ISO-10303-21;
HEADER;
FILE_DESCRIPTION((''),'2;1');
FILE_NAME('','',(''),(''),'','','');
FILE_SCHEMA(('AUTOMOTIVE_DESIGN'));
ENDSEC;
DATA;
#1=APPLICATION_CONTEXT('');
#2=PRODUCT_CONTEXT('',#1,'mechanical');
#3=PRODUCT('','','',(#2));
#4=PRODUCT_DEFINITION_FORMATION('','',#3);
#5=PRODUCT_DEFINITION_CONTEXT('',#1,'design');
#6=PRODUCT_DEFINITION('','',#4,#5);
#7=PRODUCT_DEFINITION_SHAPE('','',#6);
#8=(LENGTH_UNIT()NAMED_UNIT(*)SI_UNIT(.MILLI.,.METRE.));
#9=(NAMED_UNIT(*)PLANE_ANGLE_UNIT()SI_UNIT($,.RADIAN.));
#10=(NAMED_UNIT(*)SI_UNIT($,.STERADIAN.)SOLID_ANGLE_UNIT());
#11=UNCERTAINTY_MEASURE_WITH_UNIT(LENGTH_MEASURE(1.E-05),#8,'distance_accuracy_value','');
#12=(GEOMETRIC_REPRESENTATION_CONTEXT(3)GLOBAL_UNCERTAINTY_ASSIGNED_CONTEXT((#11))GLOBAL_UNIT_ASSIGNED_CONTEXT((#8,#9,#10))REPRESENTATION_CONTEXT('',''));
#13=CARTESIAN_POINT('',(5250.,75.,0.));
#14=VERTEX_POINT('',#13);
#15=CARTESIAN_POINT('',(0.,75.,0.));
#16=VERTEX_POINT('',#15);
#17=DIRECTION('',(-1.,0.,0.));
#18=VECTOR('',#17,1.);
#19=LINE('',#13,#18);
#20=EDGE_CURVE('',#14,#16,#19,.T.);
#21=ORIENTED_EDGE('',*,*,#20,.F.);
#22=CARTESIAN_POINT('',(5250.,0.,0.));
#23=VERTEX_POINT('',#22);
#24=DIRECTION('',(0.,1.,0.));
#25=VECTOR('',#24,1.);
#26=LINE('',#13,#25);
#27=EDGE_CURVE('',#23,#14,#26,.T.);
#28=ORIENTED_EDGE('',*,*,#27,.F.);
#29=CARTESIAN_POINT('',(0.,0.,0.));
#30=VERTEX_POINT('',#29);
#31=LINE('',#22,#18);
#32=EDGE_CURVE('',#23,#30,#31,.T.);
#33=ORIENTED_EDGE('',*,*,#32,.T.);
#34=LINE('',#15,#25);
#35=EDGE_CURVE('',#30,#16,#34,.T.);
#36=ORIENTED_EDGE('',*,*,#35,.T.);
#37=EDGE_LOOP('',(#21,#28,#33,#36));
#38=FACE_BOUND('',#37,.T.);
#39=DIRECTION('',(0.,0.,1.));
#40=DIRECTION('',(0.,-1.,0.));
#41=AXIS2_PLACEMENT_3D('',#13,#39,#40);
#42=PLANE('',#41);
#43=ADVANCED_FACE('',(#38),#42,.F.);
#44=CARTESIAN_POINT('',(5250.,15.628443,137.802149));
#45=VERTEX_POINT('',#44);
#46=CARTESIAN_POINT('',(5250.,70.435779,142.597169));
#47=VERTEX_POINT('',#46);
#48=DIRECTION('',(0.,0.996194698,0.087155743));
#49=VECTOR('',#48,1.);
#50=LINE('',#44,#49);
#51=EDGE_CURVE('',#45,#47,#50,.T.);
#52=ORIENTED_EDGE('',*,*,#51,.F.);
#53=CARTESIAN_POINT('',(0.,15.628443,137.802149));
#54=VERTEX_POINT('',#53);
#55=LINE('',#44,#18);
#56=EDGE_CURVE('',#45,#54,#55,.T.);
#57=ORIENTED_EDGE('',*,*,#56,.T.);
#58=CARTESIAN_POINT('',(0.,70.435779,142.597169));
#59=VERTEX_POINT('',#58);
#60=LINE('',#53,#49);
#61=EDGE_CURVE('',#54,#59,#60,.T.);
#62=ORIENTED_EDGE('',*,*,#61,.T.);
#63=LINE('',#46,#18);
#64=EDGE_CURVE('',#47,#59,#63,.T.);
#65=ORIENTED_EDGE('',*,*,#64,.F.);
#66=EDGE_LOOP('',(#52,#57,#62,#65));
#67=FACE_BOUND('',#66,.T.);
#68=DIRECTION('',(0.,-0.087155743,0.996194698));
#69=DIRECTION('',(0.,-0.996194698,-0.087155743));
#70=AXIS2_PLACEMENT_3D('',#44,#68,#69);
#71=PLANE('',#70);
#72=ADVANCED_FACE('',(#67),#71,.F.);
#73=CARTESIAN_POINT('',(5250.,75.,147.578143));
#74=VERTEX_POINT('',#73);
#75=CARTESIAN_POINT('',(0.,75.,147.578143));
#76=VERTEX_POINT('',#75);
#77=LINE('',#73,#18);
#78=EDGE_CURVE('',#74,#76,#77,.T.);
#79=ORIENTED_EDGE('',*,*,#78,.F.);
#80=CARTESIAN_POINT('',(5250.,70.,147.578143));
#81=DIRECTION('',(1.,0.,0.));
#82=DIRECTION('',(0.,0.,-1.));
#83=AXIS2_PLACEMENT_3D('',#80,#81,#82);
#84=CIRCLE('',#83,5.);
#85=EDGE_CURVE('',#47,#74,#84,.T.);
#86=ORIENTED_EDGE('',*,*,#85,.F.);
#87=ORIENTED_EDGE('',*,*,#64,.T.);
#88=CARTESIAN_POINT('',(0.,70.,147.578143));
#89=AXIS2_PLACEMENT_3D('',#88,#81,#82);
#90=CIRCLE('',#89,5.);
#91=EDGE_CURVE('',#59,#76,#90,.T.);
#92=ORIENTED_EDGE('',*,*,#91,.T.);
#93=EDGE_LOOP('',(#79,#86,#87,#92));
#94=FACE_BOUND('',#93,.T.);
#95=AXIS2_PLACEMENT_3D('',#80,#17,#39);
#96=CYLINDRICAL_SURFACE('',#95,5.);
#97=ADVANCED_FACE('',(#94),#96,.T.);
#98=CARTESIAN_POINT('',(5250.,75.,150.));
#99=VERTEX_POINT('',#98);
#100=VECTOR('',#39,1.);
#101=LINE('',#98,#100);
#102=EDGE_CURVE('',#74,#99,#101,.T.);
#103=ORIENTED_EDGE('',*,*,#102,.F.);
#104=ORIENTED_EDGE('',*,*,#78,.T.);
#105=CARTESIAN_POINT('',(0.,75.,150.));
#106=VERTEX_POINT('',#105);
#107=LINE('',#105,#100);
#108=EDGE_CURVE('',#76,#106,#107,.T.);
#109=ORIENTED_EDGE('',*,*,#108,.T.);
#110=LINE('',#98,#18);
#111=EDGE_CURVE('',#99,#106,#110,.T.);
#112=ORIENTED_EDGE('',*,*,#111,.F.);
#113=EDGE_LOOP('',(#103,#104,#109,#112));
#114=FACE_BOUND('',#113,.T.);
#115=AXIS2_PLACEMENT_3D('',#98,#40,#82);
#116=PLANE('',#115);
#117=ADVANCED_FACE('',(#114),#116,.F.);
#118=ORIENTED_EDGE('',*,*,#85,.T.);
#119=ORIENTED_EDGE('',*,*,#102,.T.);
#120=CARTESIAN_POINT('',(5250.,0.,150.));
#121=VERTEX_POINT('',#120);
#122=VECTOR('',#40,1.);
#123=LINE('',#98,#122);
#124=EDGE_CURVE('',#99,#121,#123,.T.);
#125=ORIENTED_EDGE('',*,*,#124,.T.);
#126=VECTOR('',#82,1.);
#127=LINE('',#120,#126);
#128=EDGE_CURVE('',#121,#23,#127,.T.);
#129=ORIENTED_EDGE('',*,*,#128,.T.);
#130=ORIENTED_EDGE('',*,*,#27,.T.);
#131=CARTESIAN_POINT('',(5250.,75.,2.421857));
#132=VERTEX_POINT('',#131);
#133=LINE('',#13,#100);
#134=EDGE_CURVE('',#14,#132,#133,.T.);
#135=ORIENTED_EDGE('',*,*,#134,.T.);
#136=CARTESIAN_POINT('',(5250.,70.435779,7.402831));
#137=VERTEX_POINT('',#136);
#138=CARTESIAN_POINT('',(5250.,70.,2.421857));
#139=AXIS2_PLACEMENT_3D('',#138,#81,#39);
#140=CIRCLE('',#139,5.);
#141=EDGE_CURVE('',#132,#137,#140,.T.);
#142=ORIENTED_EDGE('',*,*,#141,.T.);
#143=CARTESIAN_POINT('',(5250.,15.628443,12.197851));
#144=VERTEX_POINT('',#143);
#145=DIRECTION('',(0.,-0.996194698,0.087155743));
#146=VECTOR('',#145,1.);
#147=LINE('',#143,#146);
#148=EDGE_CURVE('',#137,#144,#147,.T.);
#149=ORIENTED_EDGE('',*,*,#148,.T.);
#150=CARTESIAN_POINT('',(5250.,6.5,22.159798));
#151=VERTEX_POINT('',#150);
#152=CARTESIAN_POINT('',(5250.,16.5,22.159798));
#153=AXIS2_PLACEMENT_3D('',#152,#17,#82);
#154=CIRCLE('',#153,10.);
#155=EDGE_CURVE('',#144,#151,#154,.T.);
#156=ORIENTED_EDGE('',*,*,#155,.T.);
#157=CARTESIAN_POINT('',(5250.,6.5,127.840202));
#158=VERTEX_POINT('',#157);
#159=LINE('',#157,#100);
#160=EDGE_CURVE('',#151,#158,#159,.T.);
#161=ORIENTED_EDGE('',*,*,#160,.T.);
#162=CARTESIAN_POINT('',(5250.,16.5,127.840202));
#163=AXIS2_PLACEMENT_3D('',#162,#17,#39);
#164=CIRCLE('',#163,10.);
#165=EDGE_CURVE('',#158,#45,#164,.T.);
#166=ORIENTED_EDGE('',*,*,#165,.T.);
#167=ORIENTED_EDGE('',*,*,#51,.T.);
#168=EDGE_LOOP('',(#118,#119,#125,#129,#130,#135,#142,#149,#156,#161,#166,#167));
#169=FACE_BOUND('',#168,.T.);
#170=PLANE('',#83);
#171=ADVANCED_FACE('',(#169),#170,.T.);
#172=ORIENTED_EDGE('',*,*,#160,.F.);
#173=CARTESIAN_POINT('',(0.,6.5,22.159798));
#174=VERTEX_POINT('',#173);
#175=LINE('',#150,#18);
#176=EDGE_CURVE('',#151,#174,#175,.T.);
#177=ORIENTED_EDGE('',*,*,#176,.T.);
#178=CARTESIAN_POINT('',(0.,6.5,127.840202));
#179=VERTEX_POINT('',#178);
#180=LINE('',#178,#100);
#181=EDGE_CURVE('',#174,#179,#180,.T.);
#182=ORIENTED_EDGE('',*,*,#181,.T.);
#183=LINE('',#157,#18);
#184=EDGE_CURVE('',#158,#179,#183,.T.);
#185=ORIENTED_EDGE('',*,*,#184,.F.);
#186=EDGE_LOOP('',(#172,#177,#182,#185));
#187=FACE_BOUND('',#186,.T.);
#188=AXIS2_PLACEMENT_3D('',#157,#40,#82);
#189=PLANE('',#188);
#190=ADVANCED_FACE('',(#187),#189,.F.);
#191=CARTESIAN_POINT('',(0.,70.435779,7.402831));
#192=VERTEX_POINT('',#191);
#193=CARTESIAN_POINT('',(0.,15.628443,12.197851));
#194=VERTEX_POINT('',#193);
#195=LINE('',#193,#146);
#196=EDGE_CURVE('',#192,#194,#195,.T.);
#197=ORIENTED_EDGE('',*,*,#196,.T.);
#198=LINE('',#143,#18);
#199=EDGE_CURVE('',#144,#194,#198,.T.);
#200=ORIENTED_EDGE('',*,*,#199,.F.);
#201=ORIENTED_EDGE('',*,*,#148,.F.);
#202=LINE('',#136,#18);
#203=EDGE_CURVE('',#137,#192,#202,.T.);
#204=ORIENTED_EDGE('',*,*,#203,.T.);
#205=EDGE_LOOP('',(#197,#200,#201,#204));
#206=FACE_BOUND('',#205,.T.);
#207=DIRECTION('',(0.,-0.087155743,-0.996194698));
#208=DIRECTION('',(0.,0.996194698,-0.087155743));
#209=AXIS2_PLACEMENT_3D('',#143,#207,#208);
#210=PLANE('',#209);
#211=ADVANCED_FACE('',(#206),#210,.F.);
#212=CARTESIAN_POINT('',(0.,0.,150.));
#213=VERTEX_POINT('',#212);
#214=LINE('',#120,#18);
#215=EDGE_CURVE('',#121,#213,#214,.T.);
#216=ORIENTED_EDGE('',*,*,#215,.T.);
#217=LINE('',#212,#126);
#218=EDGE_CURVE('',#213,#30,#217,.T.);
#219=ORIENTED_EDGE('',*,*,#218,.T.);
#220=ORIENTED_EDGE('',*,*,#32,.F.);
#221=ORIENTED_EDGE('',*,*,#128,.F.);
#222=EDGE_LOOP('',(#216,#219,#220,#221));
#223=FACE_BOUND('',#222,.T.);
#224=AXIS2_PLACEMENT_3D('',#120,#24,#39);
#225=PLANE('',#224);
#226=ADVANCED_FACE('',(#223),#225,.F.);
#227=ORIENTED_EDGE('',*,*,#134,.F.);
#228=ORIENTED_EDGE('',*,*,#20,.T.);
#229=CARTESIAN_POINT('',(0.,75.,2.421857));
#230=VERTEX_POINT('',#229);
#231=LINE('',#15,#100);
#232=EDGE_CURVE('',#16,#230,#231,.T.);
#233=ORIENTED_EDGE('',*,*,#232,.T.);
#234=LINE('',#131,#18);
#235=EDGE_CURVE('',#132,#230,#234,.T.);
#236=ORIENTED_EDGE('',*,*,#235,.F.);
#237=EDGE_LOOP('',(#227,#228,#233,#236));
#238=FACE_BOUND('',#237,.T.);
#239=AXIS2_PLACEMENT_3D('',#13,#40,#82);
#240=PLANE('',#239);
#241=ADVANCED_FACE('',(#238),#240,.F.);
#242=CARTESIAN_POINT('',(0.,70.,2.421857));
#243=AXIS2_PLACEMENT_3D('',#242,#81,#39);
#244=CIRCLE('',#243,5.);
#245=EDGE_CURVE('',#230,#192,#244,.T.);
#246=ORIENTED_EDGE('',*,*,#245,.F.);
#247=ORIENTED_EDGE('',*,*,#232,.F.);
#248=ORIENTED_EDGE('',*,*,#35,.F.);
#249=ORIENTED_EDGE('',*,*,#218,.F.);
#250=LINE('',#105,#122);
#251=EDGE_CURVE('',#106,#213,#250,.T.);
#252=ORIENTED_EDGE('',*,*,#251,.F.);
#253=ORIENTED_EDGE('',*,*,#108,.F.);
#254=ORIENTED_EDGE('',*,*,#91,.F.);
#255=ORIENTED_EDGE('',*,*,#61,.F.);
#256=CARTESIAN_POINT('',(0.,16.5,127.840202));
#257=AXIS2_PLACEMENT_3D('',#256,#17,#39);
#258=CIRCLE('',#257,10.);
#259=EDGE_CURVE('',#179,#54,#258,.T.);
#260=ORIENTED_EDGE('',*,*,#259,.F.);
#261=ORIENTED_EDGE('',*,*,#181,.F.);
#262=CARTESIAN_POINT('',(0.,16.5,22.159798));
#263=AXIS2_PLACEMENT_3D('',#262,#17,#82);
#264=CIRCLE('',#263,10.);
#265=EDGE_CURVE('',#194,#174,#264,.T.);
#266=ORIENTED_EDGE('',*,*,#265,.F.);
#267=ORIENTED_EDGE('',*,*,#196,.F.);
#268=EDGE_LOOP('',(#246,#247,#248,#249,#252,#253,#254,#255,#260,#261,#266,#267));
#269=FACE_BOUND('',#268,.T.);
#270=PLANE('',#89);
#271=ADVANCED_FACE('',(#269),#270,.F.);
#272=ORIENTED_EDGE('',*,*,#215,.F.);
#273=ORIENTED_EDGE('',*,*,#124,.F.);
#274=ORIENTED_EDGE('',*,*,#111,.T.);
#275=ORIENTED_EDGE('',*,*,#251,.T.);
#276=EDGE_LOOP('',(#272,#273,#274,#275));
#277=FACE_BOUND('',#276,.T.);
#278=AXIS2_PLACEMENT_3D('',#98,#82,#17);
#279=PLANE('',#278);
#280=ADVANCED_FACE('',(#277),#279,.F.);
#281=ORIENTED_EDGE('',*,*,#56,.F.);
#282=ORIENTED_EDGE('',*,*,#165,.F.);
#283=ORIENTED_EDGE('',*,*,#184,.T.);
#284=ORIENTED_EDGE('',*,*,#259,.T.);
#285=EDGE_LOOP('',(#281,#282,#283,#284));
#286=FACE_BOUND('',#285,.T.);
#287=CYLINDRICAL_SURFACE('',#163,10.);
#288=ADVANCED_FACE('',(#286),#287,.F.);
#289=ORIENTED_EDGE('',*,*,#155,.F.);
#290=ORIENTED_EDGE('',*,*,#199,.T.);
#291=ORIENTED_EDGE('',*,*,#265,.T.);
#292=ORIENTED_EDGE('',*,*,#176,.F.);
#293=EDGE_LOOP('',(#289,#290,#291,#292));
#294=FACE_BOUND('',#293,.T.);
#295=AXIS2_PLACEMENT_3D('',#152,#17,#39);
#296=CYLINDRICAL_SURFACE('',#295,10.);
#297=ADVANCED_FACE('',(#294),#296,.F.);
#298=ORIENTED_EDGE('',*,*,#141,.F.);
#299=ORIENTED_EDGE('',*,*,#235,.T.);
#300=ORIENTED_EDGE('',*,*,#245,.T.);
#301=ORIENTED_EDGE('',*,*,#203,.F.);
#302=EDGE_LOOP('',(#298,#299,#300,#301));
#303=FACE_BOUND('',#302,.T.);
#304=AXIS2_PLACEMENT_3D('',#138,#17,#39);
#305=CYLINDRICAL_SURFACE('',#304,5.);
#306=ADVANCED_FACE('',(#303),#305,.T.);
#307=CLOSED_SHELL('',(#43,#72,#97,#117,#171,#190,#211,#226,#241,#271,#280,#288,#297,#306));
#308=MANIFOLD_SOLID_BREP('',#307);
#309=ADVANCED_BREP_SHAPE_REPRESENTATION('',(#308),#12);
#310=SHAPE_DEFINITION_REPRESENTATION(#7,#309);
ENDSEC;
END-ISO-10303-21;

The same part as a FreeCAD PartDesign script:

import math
import FreeCAD as App
import Part
import Sketcher
from FreeCAD import Vector
Q = App.Units.Quantity

doc = App.newDocument("Part")
params = doc.addObject("Spreadsheet::Sheet", "Params")
for row, (alias, value) in enumerate([
    ("sketch1_radius", "5 mm"),
    ("sketch1_radius2", "10 mm"),
    ("sketch1_width", "75 mm"),
    ("sketch1_height", "150 mm"),
    ("pad1_length", "5250 mm"),
], start=1):
    params.set(f"A{row}", alias)
    params.set(f"B{row}", "=" + value)
    params.setAlias(f"B{row}", alias)

body = doc.addObject("PartDesign::Body", "Body")

# Sketch on YZ plane
sketch1 = body.newObject("Sketcher::SketchObject", "Sketch")
sketch1.AttachmentSupport = (doc.getObject("YZ_Plane"), [""])
sketch1.MapMode = "FlatFace"
sketch1.addGeometry([
    Part.LineSegment(Vector(75, 150, 0), Vector(0, 150, 0)),  # 0
    Part.LineSegment(Vector(0, 150, 0), Vector(0, 0, 0)),  # 1
    Part.LineSegment(Vector(0, 0, 0), Vector(75, 0, 0)),  # 2
    Part.LineSegment(Vector(75, 0, 0), Vector(75, 2.4, 0)),  # 3
    Part.ArcOfCircle(Part.Circle(Vector(70, 2.4, 0), Vector(0, 0, 1), 5), math.radians(0), math.radians(85)),  # 4
    Part.LineSegment(Vector(70.4, 7.4, 0), Vector(15.6, 12.2, 0)),  # 5
    Part.ArcOfCircle(Part.Circle(Vector(16.5, 22.2, 0), Vector(0, 0, 1), 10), math.radians(180), math.radians(265)),  # 6
    Part.LineSegment(Vector(6.5, 22.2, 0), Vector(6.5, 127.8, 0)),  # 7
    Part.ArcOfCircle(Part.Circle(Vector(16.5, 127.8, 0), Vector(0, 0, 1), 10), math.radians(95), math.radians(180)),  # 8
    Part.LineSegment(Vector(15.6, 137.8, 0), Vector(70.4, 142.6, 0)),  # 9
    Part.ArcOfCircle(Part.Circle(Vector(70, 147.6, 0), Vector(0, 0, 1), 5), math.radians(-85), math.radians(0)),  # 10
    Part.LineSegment(Vector(75, 147.6, 0), Vector(75, 150, 0)),  # 11
], False)
sketch1.addConstraint([
    Sketcher.Constraint("Coincident", 0, 2, 1, 1),
    Sketcher.Constraint("Coincident", 1, 2, 2, 1),
    Sketcher.Constraint("Coincident", 2, 2, 3, 1),
    Sketcher.Constraint("Tangent", 3, 2, 4, 1),
    Sketcher.Constraint("Tangent", 4, 2, 5, 1),
    Sketcher.Constraint("Tangent", 5, 2, 6, 2),
    Sketcher.Constraint("Tangent", 6, 1, 7, 1),
    Sketcher.Constraint("Tangent", 7, 2, 8, 2),
    Sketcher.Constraint("Tangent", 8, 1, 9, 1),
    Sketcher.Constraint("Tangent", 9, 2, 10, 1),
    Sketcher.Constraint("Tangent", 10, 2, 11, 1),
    Sketcher.Constraint("Coincident", 11, 2, 0, 1),
    Sketcher.Constraint("Horizontal", 0),
    Sketcher.Constraint("Vertical", 1),
    Sketcher.Constraint("Horizontal", 2),
    Sketcher.Constraint("Vertical", 3),
    Sketcher.Constraint("Vertical", 7),
    Sketcher.Constraint("Vertical", 11),
    Sketcher.Constraint("Coincident", 1, 2, -1, 1),
    Sketcher.Constraint("Equal", 6, 8),
    Sketcher.Constraint("Equal", 4, 10),
    Sketcher.Constraint("Vertical", 4, 3, 10, 3),
    Sketcher.Constraint("Vertical", 5, 2, 8, 1),
    Sketcher.Constraint("Equal", 3, 11),
    Sketcher.Constraint("Radius", 4, Q("5 mm")),
    Sketcher.Constraint("Radius", 6, Q("10 mm")),
    Sketcher.Constraint("DistanceX", 0, 2, 0, 1, Q("75 mm")),
    Sketcher.Constraint("DistanceY", 1, 2, 1, 1, Q("150 mm")),
    Sketcher.Constraint("Angle", 5, Q("175 deg")),
    Sketcher.Constraint("DistanceX", -1, 1, 6, 3, Q("16.5 mm")),
    Sketcher.Constraint("DistanceY", -1, 1, 6, 3, Q("22.159798 mm")),
])
sketch1.setExpression("Constraints[24]", "Params.sketch1_radius")
sketch1.setExpression("Constraints[25]", "Params.sketch1_radius2")
sketch1.setExpression("Constraints[26]", "Params.sketch1_width")
sketch1.setExpression("Constraints[27]", "Params.sketch1_height")
pad1 = body.newObject("PartDesign::Pad", "Pad")
pad1.Profile = sketch1
pad1.setExpression("Length", "Params.pad1_length")

doc.recompute()
